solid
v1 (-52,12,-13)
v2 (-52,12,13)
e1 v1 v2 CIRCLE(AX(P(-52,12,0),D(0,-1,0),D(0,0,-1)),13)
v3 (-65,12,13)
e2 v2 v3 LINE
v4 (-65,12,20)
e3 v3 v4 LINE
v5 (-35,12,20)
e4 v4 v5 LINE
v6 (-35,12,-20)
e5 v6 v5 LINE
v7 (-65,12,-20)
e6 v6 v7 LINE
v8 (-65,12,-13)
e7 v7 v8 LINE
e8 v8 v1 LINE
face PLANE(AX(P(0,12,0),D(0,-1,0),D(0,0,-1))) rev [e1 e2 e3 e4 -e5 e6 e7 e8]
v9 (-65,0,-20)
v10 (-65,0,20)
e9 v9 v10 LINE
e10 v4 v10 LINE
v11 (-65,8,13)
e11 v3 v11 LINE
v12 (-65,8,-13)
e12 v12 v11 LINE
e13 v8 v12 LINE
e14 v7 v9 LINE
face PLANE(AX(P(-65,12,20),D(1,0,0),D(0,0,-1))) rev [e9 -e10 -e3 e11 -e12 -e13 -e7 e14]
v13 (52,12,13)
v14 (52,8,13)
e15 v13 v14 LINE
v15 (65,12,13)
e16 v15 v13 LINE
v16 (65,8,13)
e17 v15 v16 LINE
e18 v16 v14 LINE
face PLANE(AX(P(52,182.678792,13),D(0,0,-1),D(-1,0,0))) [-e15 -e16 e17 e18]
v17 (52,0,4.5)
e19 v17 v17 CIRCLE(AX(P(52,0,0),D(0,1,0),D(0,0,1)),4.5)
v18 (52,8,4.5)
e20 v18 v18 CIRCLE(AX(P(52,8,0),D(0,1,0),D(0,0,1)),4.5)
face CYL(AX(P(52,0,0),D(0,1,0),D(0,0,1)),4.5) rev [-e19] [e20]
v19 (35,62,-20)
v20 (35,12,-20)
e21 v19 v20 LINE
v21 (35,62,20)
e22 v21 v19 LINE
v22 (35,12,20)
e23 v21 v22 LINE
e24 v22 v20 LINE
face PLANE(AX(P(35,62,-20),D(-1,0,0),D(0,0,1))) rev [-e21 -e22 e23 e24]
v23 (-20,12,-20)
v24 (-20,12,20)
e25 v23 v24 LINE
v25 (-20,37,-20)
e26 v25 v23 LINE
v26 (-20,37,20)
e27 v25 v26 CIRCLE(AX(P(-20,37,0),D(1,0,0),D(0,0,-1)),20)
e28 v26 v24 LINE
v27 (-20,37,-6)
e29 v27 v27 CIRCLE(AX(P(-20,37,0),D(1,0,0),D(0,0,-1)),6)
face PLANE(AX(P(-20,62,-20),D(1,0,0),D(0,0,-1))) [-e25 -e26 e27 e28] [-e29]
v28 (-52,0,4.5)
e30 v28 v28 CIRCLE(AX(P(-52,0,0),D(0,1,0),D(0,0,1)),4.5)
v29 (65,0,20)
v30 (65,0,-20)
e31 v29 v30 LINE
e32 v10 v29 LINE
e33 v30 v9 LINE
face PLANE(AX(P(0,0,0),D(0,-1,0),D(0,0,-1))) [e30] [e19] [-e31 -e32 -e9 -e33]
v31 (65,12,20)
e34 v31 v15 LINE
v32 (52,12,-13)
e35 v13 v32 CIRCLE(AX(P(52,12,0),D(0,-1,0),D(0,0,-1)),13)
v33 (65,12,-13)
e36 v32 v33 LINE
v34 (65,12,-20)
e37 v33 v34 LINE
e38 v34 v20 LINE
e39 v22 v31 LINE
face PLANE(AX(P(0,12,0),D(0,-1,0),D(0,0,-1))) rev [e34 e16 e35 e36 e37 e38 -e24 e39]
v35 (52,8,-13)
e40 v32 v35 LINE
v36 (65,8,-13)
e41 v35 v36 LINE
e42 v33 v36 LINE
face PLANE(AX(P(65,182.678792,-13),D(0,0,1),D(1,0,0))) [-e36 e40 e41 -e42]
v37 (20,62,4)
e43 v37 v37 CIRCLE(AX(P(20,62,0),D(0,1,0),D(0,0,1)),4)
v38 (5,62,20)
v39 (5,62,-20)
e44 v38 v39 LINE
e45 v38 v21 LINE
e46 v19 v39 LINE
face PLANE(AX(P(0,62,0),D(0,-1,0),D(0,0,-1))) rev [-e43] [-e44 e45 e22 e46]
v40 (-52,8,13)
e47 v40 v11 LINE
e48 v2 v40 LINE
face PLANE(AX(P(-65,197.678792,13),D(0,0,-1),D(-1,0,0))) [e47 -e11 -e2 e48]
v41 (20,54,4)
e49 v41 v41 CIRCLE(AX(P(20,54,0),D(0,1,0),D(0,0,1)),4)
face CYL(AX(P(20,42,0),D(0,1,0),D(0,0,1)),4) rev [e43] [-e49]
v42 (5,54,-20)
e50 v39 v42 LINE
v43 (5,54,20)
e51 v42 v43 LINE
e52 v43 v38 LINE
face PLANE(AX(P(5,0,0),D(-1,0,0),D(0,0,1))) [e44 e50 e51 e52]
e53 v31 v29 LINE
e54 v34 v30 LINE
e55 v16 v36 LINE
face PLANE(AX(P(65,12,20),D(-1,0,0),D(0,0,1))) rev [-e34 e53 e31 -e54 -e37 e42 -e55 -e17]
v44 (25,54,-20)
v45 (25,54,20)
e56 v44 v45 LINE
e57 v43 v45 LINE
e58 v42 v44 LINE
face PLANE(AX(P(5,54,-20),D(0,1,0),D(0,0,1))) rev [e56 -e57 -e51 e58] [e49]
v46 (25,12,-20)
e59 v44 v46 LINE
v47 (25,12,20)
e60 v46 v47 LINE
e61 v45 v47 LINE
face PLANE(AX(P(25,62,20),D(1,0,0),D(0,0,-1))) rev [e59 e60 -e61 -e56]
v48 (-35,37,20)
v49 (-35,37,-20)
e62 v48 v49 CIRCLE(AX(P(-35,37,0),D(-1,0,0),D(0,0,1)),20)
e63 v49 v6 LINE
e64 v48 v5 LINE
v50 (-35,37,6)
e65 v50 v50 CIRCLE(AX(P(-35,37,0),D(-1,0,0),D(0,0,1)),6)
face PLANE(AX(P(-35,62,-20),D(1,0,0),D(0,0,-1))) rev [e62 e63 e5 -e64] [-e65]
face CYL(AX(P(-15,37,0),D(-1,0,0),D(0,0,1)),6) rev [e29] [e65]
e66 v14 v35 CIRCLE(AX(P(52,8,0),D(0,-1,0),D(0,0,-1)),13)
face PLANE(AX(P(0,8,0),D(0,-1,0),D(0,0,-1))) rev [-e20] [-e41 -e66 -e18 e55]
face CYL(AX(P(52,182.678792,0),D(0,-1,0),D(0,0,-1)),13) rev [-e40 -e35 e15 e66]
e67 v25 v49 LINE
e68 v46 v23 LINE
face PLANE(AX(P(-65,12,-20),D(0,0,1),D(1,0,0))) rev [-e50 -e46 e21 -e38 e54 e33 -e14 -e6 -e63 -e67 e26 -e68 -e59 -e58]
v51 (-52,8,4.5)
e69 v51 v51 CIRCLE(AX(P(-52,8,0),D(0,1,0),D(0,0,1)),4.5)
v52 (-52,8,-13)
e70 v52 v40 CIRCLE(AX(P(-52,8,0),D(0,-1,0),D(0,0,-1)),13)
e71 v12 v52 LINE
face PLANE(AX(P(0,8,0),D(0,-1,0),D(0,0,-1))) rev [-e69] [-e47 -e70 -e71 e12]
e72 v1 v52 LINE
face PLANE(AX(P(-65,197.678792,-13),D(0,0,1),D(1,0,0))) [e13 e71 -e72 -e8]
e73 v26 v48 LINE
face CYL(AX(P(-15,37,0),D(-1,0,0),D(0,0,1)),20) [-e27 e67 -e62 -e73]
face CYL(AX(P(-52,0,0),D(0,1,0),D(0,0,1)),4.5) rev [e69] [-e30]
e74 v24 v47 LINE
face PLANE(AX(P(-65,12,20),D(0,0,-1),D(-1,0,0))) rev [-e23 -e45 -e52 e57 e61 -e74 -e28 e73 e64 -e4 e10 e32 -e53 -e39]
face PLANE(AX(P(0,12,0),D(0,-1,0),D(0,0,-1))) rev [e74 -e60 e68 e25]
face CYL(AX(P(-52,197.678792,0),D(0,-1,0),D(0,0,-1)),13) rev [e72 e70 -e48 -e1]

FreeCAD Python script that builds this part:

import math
import FreeCAD as App
import Part
import Sketcher

V = App.Vector

doc = App.newDocument("Part")
body = doc.addObject("PartDesign::Body", "Body")

sketch1 = doc.addObject("Sketcher::SketchObject", "Sketch")
body.addObject(sketch1)
sketch1.AttachmentSupport = (doc.XZ_Plane, [""])
sketch1.MapMode = "FlatFace"
sketch1.addGeometry(Part.LineSegment(V(-65, -20, 0), V(-65, 20, 0)), False)
sketch1.addGeometry(Part.LineSegment(V(-65, 20, 0), V(65, 20, 0)), False)
sketch1.addGeometry(Part.LineSegment(V(65, 20, 0), V(65, -20, 0)), False)
sketch1.addGeometry(Part.LineSegment(V(65, -20, 0), V(-65, -20, 0)), False)
sketch1.addConstraint(Sketcher.Constraint("Coincident", 0, 2, 1, 1))
sketch1.addConstraint(Sketcher.Constraint("Coincident", 1, 2, 2, 1))
sketch1.addConstraint(Sketcher.Constraint("Coincident", 2, 2, 3, 1))
sketch1.addConstraint(Sketcher.Constraint("Coincident", 3, 2, 0, 1))
sketch1.addConstraint(Sketcher.Constraint("Vertical", 0))
sketch1.addConstraint(Sketcher.Constraint("Horizontal", 1))
sketch1.addConstraint(Sketcher.Constraint("Vertical", 2))
sketch1.addConstraint(Sketcher.Constraint("Horizontal", 3))
sketch1.addConstraint(Sketcher.Constraint("Symmetric", 0, 2, 2, 2, -1, 1))
sketch1.addConstraint(Sketcher.Constraint("DistanceX", 1, 1, 1, 2, 130.0))
sketch1.addConstraint(Sketcher.Constraint("DistanceY", 0, 1, 0, 2, 40.0))
pad1 = doc.addObject("PartDesign::Pad", "Pad")
body.addObject(pad1)
pad1.Profile = sketch1
pad1.Length = 12
pad1.Reversed = True

sketch2 = doc.addObject("Sketcher::SketchObject", "Sketch001")
body.addObject(sketch2)
sketch2.AttachmentSupport = (doc.XZ_Plane, [""])
sketch2.MapMode = "FlatFace"
sketch2.AttachmentOffset = App.Placement(V(0, 0, -12), App.Rotation())
sketch2.addGeometry(Part.LineSegment(V(-52, -13, 0), V(-65, -13, 0)), False)
sketch2.addGeometry(Part.LineSegment(V(-65, -13, 0), V(-65, 13, 0)), False)
sketch2.addGeometry(Part.LineSegment(V(-65, 13, 0), V(-52, 13, 0)), False)
sketch2.addGeometry(Part.ArcOfCircle(Part.Circle(V(-52, 0, 0), V(0, 0, 1), 13), math.radians(-90), math.radians(90)), False)
sketch2.addConstraint(Sketcher.Constraint("Coincident", 0, 2, 1, 1))
sketch2.addConstraint(Sketcher.Constraint("Coincident", 1, 2, 2, 1))
sketch2.addConstraint(Sketcher.Constraint("Tangent", 2, 2, 3, 2))
sketch2.addConstraint(Sketcher.Constraint("Tangent", 3, 1, 0, 1))
sketch2.addConstraint(Sketcher.Constraint("Horizontal", 0))
sketch2.addConstraint(Sketcher.Constraint("Vertical", 1))
sketch2.addConstraint(Sketcher.Constraint("Horizontal", 2))
sketch2.addConstraint(Sketcher.Constraint("PointOnObject", 3, 3, -1))
sketch2.addConstraint(Sketcher.Constraint("Radius", 3, 13.0))
sketch2.addConstraint(Sketcher.Constraint("DistanceX", 0, 2, 0, 1, 13.0))
sketch2.addConstraint(Sketcher.Constraint("DistanceX", 3, 3, -1, 1, 52.0))
pocket1 = doc.addObject("PartDesign::Pocket", "Pocket")
body.addObject(pocket1)
pocket1.Profile = sketch2
pocket1.Type = "TwoLengths"
pocket1.Length = 70.057947
pocket1.Length2 = 4

sketch3 = doc.addObject("Sketcher::SketchObject", "Sketch002")
body.addObject(sketch3)
sketch3.AttachmentSupport = (doc.XZ_Plane, [""])
sketch3.MapMode = "FlatFace"
sketch3.AttachmentOffset = App.Placement(V(0, 0, -12), App.Rotation())
sketch3.addGeometry(Part.ArcOfCircle(Part.Circle(V(52, 0, 0), V(0, 0, 1), 13), math.radians(90), math.radians(270)), False)
sketch3.addGeometry(Part.LineSegment(V(52, 13, 0), V(900, 13, 0)), False)
sketch3.addGeometry(Part.LineSegment(V(900, 13, 0), V(900, -13, 0)), False)
sketch3.addGeometry(Part.LineSegment(V(900, -13, 0), V(52, -13, 0)), False)
sketch3.addConstraint(Sketcher.Constraint("Tangent", 0, 1, 1, 1))
sketch3.addConstraint(Sketcher.Constraint("Coincident", 1, 2, 2, 1))
sketch3.addConstraint(Sketcher.Constraint("Coincident", 2, 2, 3, 1))
sketch3.addConstraint(Sketcher.Constraint("Tangent", 3, 2, 0, 2))
sketch3.addConstraint(Sketcher.Constraint("Horizontal", 1))
sketch3.addConstraint(Sketcher.Constraint("Vertical", 2))
sketch3.addConstraint(Sketcher.Constraint("Horizontal", 3))
sketch3.addConstraint(Sketcher.Constraint("PointOnObject", 0, 3, -1))
sketch3.addConstraint(Sketcher.Constraint("Radius", 0, 13.0))
sketch3.addConstraint(Sketcher.Constraint("DistanceX", -1, 1, 0, 3, 52.0))
sketch3.addConstraint(Sketcher.Constraint("DistanceX", 1, 1, 1, 2, 847.738467))
pocket2 = doc.addObject("PartDesign::Pocket", "Pocket001")
body.addObject(pocket2)
pocket2.Profile = sketch3
pocket2.Type = "TwoLengths"
pocket2.Length = 70.057947
pocket2.Length2 = 4

sketch4 = doc.addObject("Sketcher::SketchObject", "Sketch003")
body.addObject(sketch4)
sketch4.AttachmentSupport = (doc.XZ_Plane, [""])
sketch4.MapMode = "FlatFace"
sketch4.AttachmentOffset = App.Placement(V(0, 0, -8), App.Rotation())
sketch4.addGeometry(Part.Circle(V(-52, 0, 0), V(0, 0, 1), 4.5), False)
sketch4.addGeometry(Part.Circle(V(52, 0, 0), V(0, 0, 1), 4.5), False)
sketch4.addConstraint(Sketcher.Constraint("Equal", 0, 1))
sketch4.addConstraint(Sketcher.Constraint("Symmetric", 0, 3, 1, 3, -1, 1))
sketch4.addConstraint(Sketcher.Constraint("PointOnObject", 0, 3, -1))
sketch4.addConstraint(Sketcher.Constraint("Diameter", 0, 9.0))
sketch4.addConstraint(Sketcher.Constraint("DistanceX", 0, 3, -1, 1, 52.0))
pocket3 = doc.addObject("PartDesign::Pocket", "Pocket002")
body.addObject(pocket3)
pocket3.Profile = sketch4
pocket3.Type = "ThroughAll"
pocket3.Reversed = True

sketch5 = doc.addObject("Sketcher::SketchObject", "Sketch004")
body.addObject(sketch5)
sketch5.AttachmentSupport = (doc.XZ_Plane, [""])
sketch5.MapMode = "FlatFace"
sketch5.AttachmentOffset = App.Placement(V(0, 0, -12), App.Rotation())
sketch5.addGeometry(Part.LineSegment(V(-35, -20, 0), V(-35, 20, 0)), False)
sketch5.addGeometry(Part.LineSegment(V(-35, 20, 0), V(-20, 20, 0)), False)
sketch5.addGeometry(Part.LineSegment(V(-20, 20, 0), V(-20, -20, 0)), False)
sketch5.addGeometry(Part.LineSegment(V(-20, -20, 0), V(-35, -20, 0)), False)
sketch5.addConstraint(Sketcher.Constraint("Coincident", 0, 2, 1, 1))
sketch5.addConstraint(Sketcher.Constraint("Coincident", 1, 2, 2, 1))
sketch5.addConstraint(Sketcher.Constraint("Coincident", 2, 2, 3, 1))
sketch5.addConstraint(Sketcher.Constraint("Coincident", 3, 2, 0, 1))
sketch5.addConstraint(Sketcher.Constraint("Vertical", 0))
sketch5.addConstraint(Sketcher.Constraint("Horizontal", 1))
sketch5.addConstraint(Sketcher.Constraint("Vertical", 2))
sketch5.addConstraint(Sketcher.Constraint("Horizontal", 3))
sketch5.addConstraint(Sketcher.Constraint("DistanceX", 1, 1, 1, 2, 15.0))
sketch5.addConstraint(Sketcher.Constraint("DistanceY", 0, 1, 0, 2, 40.0))
sketch5.addConstraint(Sketcher.Constraint("DistanceX", 0, 2, -1, 1, 35.0))
sketch5.addConstraint(Sketcher.Constraint("DistanceY", -1, 1, 0, 2, 20.0))
pad2 = doc.addObject("PartDesign::Pad", "Pad001")
body.addObject(pad2)
pad2.Profile = sketch5
pad2.Length = 50
pad2.Reversed = True

sketch6 = doc.addObject("Sketcher::SketchObject", "Sketch005")
body.addObject(sketch6)
sketch6.AttachmentSupport = (doc.XZ_Plane, [""])
sketch6.MapMode = "FlatFace"
sketch6.AttachmentOffset = App.Placement(V(0, 0, -12), App.Rotation())
sketch6.addGeometry(Part.LineSegment(V(25, -20, 0), V(25, 20, 0)), False)
sketch6.addGeometry(Part.LineSegment(V(25, 20, 0), V(35, 20, 0)), False)
sketch6.addGeometry(Part.LineSegment(V(35, 20, 0), V(35, -20, 0)), False)
sketch6.addGeometry(Part.LineSegment(V(35, -20, 0), V(25, -20, 0)), False)
sketch6.addConstraint(Sketcher.Constraint("Coincident", 0, 2, 1, 1))
sketch6.addConstraint(Sketcher.Constraint("Coincident", 1, 2, 2, 1))
sketch6.addConstraint(Sketcher.Constraint("Coincident", 2, 2, 3, 1))
sketch6.addConstraint(Sketcher.Constraint("Coincident", 3, 2, 0, 1))
sketch6.addConstraint(Sketcher.Constraint("Vertical", 0))
sketch6.addConstraint(Sketcher.Constraint("Horizontal", 1))
sketch6.addConstraint(Sketcher.Constraint("Vertical", 2))
sketch6.addConstraint(Sketcher.Constraint("Horizontal", 3))
sketch6.addConstraint(Sketcher.Constraint("DistanceX", 1, 1, 1, 2, 10.0))
sketch6.addConstraint(Sketcher.Constraint("DistanceY", 0, 1, 0, 2, 40.0))
sketch6.addConstraint(Sketcher.Constraint("DistanceX", -1, 1, 0, 2, 25.0))
sketch6.addConstraint(Sketcher.Constraint("DistanceY", -1, 1, 0, 2, 20.0))
pad3 = doc.addObject("PartDesign::Pad", "Pad002")
body.addObject(pad3)
pad3.Profile = sketch6
pad3.Length = 50
pad3.Reversed = True

sketch7 = doc.addObject("Sketcher::SketchObject", "Sketch006")
body.addObject(sketch7)
sketch7.AttachmentSupport = (doc.YZ_Plane, [""])
sketch7.MapMode = "FlatFace"
sketch7.AttachmentOffset = App.Placement(V(0, 0, 25), App.Rotation())
sketch7.addGeometry(Part.LineSegment(V(62, -20, 0), V(54, -20, 0)), False)
sketch7.addGeometry(Part.LineSegment(V(54, -20, 0), V(54, 20, 0)), False)
sketch7.addGeometry(Part.LineSegment(V(54, 20, 0), V(62, 20, 0)), False)
sketch7.addGeometry(Part.LineSegment(V(62, 20, 0), V(62, -20, 0)), False)
sketch7.addConstraint(Sketcher.Constraint("Coincident", 0, 2, 1, 1))
sketch7.addConstraint(Sketcher.Constraint("Coincident", 1, 2, 2, 1))
sketch7.addConstraint(Sketcher.Constraint("Coincident", 2, 2, 3, 1))
sketch7.addConstraint(Sketcher.Constraint("Coincident", 3, 2, 0, 1))
sketch7.addConstraint(Sketcher.Constraint("Horizontal", 0))
sketch7.addConstraint(Sketcher.Constraint("Vertical", 1))
sketch7.addConstraint(Sketcher.Constraint("Horizontal", 2))
sketch7.addConstraint(Sketcher.Constraint("Vertical", 3))
sketch7.addConstraint(Sketcher.Constraint("DistanceX", 0, 2, 0, 1, 8.0))
sketch7.addConstraint(Sketcher.Constraint("DistanceY", 1, 1, 1, 2, 40.0))
sketch7.addConstraint(Sketcher.Constraint("DistanceX", -1, 1, 0, 2, 54.0))
sketch7.addConstraint(Sketcher.Constraint("DistanceY", 0, 2, -1, 1, 20.0))
pad4 = doc.addObject("PartDesign::Pad", "Pad003")
body.addObject(pad4)
pad4.Profile = sketch7
pad4.Length = 20
pad4.Reversed = True

sketch8 = doc.addObject("Sketcher::SketchObject", "Sketch007")
body.addObject(sketch8)
sketch8.AttachmentSupport = (doc.XZ_Plane, [""])
sketch8.MapMode = "FlatFace"
sketch8.AttachmentOffset = App.Placement(V(0, 0, -62), App.Rotation())
sketch8.addGeometry(Part.Circle(V(20, 0, 0), V(0, 0, 1), 4), False)
sketch8.addConstraint(Sketcher.Constraint("PointOnObject", 0, 3, -1))
sketch8.addConstraint(Sketcher.Constraint("Diameter", 0, 8.0))
sketch8.addConstraint(Sketcher.Constraint("DistanceX", -1, 1, 0, 3, 20.0))
pocket4 = doc.addObject("PartDesign::Pocket", "Pocket003")
body.addObject(pocket4)
pocket4.Profile = sketch8
pocket4.Length = 20
pocket4.Reversed = True

sketch9 = doc.addObject("Sketcher::SketchObject", "Sketch008")
body.addObject(sketch9)
sketch9.AttachmentSupport = (doc.YZ_Plane, [""])
sketch9.MapMode = "FlatFace"
sketch9.AttachmentOffset = App.Placement(V(0, 0, -35), App.Rotation())
sketch9.addGeometry(Part.LineSegment(V(62, -20, 0), V(37, -20, 0)), False)
sketch9.addGeometry(Part.ArcOfCircle(Part.Circle(V(37, 0, 0), V(0, 0, 1), 20), math.radians(-90), math.radians(90)), False)
sketch9.addGeometry(Part.LineSegment(V(37, 20, 0), V(62, 20, 0)), False)
sketch9.addGeometry(Part.LineSegment(V(62, 20, 0), V(62, -20, 0)), False)
sketch9.addConstraint(Sketcher.Constraint("Tangent", 0, 2, 1, 1))
sketch9.addConstraint(Sketcher.Constraint("Tangent", 1, 2, 2, 1))
sketch9.addConstraint(Sketcher.Constraint("Coincident", 2, 2, 3, 1))
sketch9.addConstraint(Sketcher.Constraint("Coincident", 3, 2, 0, 1))
sketch9.addConstraint(Sketcher.Constraint("Horizontal", 0))
sketch9.addConstraint(Sketcher.Constraint("Horizontal", 2))
sketch9.addConstraint(Sketcher.Constraint("Vertical", 3))
sketch9.addConstraint(Sketcher.Constraint("PointOnObject", 1, 3, -1))
sketch9.addConstraint(Sketcher.Constraint("Radius", 1, 20.0))
sketch9.addConstraint(Sketcher.Constraint("DistanceX", 0, 2, 0, 1, 25.0))
sketch9.addConstraint(Sketcher.Constraint("DistanceX", -1, 1, 1, 3, 37.0))
pocket5 = doc.addObject("PartDesign::Pocket", "Pocket004")
body.addObject(pocket5)
pocket5.Profile = sketch9
pocket5.Length = 20
pocket5.Reversed = True

sketch10 = doc.addObject("Sketcher::SketchObject", "Sketch009")
body.addObject(sketch10)
sketch10.AttachmentSupport = (doc.YZ_Plane, [""])
sketch10.MapMode = "FlatFace"
sketch10.AttachmentOffset = App.Placement(V(0, 0, -35), App.Rotation())
sketch10.addGeometry(Part.Circle(V(37, 0, 0), V(0, 0, 1), 6), False)
sketch10.addConstraint(Sketcher.Constraint("PointOnObject", 0, 3, -1))
sketch10.addConstraint(Sketcher.Constraint("Diameter", 0, 12.0))
sketch10.addConstraint(Sketcher.Constraint("DistanceX", -1, 1, 0, 3, 37.0))
pocket6 = doc.addObject("PartDesign::Pocket", "Pocket005")
body.addObject(pocket6)
pocket6.Profile = sketch10
pocket6.Length = 20
pocket6.Reversed = True

doc.recompute()
